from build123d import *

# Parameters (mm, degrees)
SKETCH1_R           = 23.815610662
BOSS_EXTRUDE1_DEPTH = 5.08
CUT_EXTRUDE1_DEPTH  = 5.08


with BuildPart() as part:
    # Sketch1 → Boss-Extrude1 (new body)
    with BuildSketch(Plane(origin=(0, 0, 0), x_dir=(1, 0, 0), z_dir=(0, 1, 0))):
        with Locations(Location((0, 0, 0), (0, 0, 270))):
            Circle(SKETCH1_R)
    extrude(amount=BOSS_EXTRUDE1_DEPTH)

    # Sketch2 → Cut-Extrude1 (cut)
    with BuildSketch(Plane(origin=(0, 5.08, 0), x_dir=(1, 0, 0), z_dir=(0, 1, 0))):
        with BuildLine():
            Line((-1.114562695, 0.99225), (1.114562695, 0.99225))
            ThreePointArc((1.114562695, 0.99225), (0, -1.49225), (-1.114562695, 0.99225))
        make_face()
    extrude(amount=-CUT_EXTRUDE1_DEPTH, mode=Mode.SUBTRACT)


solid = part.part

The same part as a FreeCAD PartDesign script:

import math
import FreeCAD as App
import Part
import Sketcher

V = App.Vector
Q = App.Units.Quantity

doc = App.newDocument("Part")
body = doc.addObject("PartDesign::Body", "Body")

sketch1 = body.newObject("Sketcher::SketchObject", "Sketch")
sketch1.AttachmentSupport = (doc.getObject("XZ_Plane"), [""])
sketch1.MapMode = "FlatFace"
sketch1.addGeometry(Part.Circle(V(0, 0, 0), V(0, 0, 1), 24), False)
sketch1.addConstraint(Sketcher.Constraint("Coincident", 0, 3, -1, 1))
sketch1.addConstraint(Sketcher.Constraint("Diameter", 0, Q("47.631221 mm")))
pad1 = body.newObject("PartDesign::Pad", "Pad")
pad1.Profile = sketch1
pad1.Length = Q("0.2 in")
pad1.Reversed = True

sketch2 = body.newObject("Sketcher::SketchObject", "Sketch001")
sketch2.AttachmentSupport = (doc.getObject("XZ_Plane"), [""])
sketch2.MapMode = "FlatFace"
sketch2.AttachmentOffset = App.Placement(V(0, 0, -0.2 * 25.4), App.Rotation())
sketch2.addGeometry(Part.LineSegment(V(1.1, -1, 0), V(-1.1, -1, 0)), False)
sketch2.addGeometry(Part.ArcOfCircle(Part.Circle(V(0, 0, 0), V(0, 0, 1), 1.5), math.radians(-42), math.radians(222)), False)
sketch2.addConstraint(Sketcher.Constraint("Coincident", 0, 1, 1, 1))
sketch2.addConstraint(Sketcher.Constraint("Coincident", 1, 2, 0, 2))
sketch2.addConstraint(Sketcher.Constraint("Horizontal", 0))
sketch2.addConstraint(Sketcher.Constraint("Coincident", 1, 3, -1, 1))
sketch2.addConstraint(Sketcher.Constraint("Radius", 1, Q("1.49225 mm")))
sketch2.addConstraint(Sketcher.Constraint("DistanceX", 0, 2, 0, 1, Q("2.229125 mm")))
pocket1 = body.newObject("PartDesign::Pocket", "Pocket")
pocket1.Profile = sketch2
pocket1.Length = Q("0.2 in")
pocket1.Reversed = True

doc.recompute()
